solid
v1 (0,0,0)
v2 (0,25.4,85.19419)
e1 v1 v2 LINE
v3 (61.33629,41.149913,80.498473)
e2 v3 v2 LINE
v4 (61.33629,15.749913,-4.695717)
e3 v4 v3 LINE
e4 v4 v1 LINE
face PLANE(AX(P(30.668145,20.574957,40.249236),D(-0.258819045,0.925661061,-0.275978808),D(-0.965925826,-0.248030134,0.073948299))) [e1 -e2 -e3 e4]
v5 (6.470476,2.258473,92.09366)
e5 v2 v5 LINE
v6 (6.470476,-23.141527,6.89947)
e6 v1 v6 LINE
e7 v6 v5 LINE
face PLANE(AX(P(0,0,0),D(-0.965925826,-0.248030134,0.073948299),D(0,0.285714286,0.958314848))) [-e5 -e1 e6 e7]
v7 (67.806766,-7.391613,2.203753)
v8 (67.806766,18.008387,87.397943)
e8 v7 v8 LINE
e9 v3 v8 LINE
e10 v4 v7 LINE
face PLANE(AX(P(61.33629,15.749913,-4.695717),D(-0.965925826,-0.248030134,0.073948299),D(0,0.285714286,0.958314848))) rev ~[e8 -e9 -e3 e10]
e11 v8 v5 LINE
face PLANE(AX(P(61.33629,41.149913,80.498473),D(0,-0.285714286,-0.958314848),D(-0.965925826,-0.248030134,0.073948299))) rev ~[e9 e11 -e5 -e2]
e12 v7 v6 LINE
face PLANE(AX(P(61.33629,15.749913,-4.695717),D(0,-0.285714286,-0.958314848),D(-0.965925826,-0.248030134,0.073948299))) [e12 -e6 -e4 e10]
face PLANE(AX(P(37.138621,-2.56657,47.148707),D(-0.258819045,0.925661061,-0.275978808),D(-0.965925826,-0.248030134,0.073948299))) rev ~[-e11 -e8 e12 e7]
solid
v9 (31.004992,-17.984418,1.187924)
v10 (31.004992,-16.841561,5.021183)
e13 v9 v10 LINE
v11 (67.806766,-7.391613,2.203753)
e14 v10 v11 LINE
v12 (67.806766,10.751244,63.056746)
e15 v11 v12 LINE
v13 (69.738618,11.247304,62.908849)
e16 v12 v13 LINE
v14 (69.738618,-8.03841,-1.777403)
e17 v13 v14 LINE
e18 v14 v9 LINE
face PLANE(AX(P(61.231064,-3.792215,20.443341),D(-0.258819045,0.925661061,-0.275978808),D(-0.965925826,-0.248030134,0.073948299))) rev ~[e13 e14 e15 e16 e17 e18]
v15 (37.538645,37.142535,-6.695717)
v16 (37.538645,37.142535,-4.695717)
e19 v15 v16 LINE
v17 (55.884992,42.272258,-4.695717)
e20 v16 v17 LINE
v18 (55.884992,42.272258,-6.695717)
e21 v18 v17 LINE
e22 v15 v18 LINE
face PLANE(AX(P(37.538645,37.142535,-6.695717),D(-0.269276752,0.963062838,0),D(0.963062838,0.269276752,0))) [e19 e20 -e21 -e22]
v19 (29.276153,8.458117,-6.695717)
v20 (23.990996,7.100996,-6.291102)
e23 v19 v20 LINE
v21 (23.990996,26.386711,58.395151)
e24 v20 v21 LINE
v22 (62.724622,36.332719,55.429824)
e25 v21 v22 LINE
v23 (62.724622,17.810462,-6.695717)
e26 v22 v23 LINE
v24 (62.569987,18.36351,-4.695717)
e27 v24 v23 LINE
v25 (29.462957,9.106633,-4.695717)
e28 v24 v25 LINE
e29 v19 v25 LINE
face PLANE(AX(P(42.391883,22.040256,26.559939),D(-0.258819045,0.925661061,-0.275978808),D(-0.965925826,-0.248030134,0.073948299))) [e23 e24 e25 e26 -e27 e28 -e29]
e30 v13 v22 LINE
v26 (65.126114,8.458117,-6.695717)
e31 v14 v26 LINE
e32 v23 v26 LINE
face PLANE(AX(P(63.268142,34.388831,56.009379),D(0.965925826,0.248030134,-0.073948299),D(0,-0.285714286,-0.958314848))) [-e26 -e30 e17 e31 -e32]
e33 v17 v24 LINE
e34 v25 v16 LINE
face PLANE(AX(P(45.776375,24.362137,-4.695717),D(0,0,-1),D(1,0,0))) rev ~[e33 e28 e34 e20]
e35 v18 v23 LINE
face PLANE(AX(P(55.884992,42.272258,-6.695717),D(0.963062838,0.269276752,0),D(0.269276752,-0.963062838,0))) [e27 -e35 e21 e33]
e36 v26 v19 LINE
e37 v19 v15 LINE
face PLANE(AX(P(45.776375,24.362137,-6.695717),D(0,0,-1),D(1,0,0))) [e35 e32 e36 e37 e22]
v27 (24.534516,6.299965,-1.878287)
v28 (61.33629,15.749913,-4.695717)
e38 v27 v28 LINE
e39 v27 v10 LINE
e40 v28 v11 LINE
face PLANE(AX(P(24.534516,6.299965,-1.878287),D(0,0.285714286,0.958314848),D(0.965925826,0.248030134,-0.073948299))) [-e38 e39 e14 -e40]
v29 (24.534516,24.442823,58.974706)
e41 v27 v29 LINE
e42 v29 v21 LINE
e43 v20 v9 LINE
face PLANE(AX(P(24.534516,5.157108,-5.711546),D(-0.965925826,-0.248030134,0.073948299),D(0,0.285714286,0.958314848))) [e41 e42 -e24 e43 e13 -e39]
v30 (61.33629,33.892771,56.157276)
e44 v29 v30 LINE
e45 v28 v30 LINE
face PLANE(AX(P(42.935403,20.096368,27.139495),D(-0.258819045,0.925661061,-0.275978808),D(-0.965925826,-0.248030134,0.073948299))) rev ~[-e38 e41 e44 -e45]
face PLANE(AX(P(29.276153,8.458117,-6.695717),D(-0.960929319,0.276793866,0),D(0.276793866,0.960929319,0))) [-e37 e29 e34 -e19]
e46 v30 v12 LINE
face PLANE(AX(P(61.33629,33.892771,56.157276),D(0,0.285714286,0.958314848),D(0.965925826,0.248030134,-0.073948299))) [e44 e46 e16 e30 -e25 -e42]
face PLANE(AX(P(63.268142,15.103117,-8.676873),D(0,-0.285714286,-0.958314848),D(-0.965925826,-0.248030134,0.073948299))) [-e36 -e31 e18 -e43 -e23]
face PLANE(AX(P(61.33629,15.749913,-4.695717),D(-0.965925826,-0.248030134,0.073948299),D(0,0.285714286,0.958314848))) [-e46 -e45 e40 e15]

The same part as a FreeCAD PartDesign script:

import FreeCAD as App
import Part
import Sketcher


def add_polygon(sketch, points):
    """Adds a closed chain of lines whose ends are joined by coincident constraints."""
    first, n = sketch.GeometryCount, len(points)
    for a, b in zip(points, points[1:] + points[:1]):
        sketch.addGeometry(Part.LineSegment(App.Vector(*a, 0), App.Vector(*b, 0)), False)
    for i in range(n):
        sketch.addConstraint(Sketcher.Constraint("Coincident", first + i, 2, first + (i + 1) % n, 1))

doc = App.newDocument("Part")
body = doc.addObject("PartDesign::Body", "Body")

sketch1 = body.newObject("Sketcher::SketchObject", "Sketch")
sketch1.Placement = App.Placement(App.Vector(0, 0, 0), App.Rotation(App.Vector(-0.965925826, -0.248030134, 0.073948299), App.Vector(0, 0.285714286, 0.958314847), App.Vector(-0.258819045, 0.925661061, -0.275978808), "ZXY"))
add_polygon(sketch1, [(-63.5, 88.9), (-63.5, 0), (0, 0), (0, 88.9)])
sketch1.addConstraint([
    Sketcher.Constraint("Vertical", 0),
    Sketcher.Constraint("Horizontal", 1),
    Sketcher.Constraint("Vertical", 2),
    Sketcher.Constraint("Horizontal", 3),
    Sketcher.Constraint("Coincident", 1, 2, -1, 1),
    Sketcher.Constraint("DistanceX", 1, 1, 1, 2, 63.5),
    Sketcher.Constraint("DistanceY", 0, 2, 0, 1, 88.9),
])
pad1 = body.newObject("PartDesign::Pad", "Pad")
pad1.Profile = sketch1
pad1.Length = 25
pad1.Reversed = True
body2 = doc.addObject("PartDesign::Body", "Body001")

sketch2 = body2.newObject("Sketcher::SketchObject", "Sketch001")
sketch2.Placement = App.Placement(App.Vector(0, 0, 0), App.Rotation(App.Vector(-0.965925826, -0.248030134, 0.073948299), App.Vector(0, 0.285714286, 0.958314847), App.Vector(-0.258819045, 0.925661061, -0.275978808), "ZXY"))
add_polygon(sketch2, [(-25.4, 63.5), (-65.5, 63.5), (-65.5, -4), (-25.4, -4)])
sketch2.addConstraint([
    Sketcher.Constraint("Horizontal", 0),
    Sketcher.Constraint("Vertical", 1),
    Sketcher.Constraint("Horizontal", 2),
    Sketcher.Constraint("Vertical", 3),
    Sketcher.Constraint("DistanceX", 0, 2, 0, 1, 40.1),
    Sketcher.Constraint("DistanceY", 1, 2, 1, 1, 67.5),
    Sketcher.Constraint("DistanceY", 1, 2, -1, 1, 4.0),
    Sketcher.Constraint("DistanceX", 0, 2, -1, 1, 65.5),
])
pad2 = body2.newObject("PartDesign::Pad", "Pad001")
pad2.Profile = sketch2
pad2.Length = 2.1

sketch3 = body2.newObject("Sketcher::SketchObject", "Sketch002")
sketch3.Placement = App.Placement(App.Vector(0, 0, 0), App.Rotation(App.Vector(-0.965925826, -0.248030134, 0.073948299), App.Vector(0, 0.285714286, 0.958314847), App.Vector(-0.258819045, 0.925661061, -0.275978808), "ZXY"))
add_polygon(sketch3, [(-63.5, 0), (-63.5, 63.5), (-65.5, 63.5), (-65.5, -4), (-25.4, -4), (-25.4, 0)])
sketch3.addConstraint([
    Sketcher.Constraint("Vertical", 0),
    Sketcher.Constraint("Horizontal", 1),
    Sketcher.Constraint("Vertical", 2),
    Sketcher.Constraint("Horizontal", 3),
    Sketcher.Constraint("Vertical", 4),
    Sketcher.Constraint("Horizontal", 5),
    Sketcher.Constraint("PointOnObject", 4, 2, -1),
    Sketcher.Constraint("DistanceX", 1, 2, 1, 1, 2.0),
    Sketcher.Constraint("DistanceY", 4, 1, 4, 2, 4.0),
    Sketcher.Constraint("DistanceX", 3, 1, 3, 2, 40.1),
    Sketcher.Constraint("DistanceY", 0, 1, 0, 2, 63.5),
    Sketcher.Constraint("DistanceX", 0, 2, -1, 1, 63.5),
])
pad3 = body2.newObject("PartDesign::Pad", "Pad002")
pad3.Profile = sketch3
pad3.Length = 25
pad3.Reversed = True

sketch4 = body2.newObject("Sketcher::SketchObject", "Sketch003")
sketch4.AttachmentSupport = (doc.getObject("XY_Plane001"), [""])
sketch4.MapMode = "FlatFace"
sketch4.AttachmentOffset = App.Placement(App.Vector(0, 0, -6.695717), App.Rotation())
add_polygon(sketch4, [(69.738618, -8.03841), (62.724622, 36.332719), (23.990996, 26.386711), (23.990996, 7.100996), (31.004992, -17.984418)])
sketch4.addConstraint([
    Sketcher.Constraint("Vertical", 2),
    Sketcher.Constraint("Parallel", 1, 4),
    Sketcher.Constraint("Equal", 1, 4),
    Sketcher.Constraint("Distance", 0, 44.92208),
    Sketcher.Constraint("Distance", 1, 39.990209),
    Sketcher.Constraint("DistanceY", 2, 2, 2, 1, 19.285714),
    Sketcher.Constraint("DistanceX", -1, 1, 0, 2, 62.724622),
    Sketcher.Constraint("DistanceY", -1, 1, 0, 2, 36.332719),
    Sketcher.Constraint("DistanceY", -1, 1, 1, 2, 26.386711),
    Sketcher.Constraint("DistanceY", 3, 2, -1, 1, 17.984418),
])
pocket1 = body2.newObject("PartDesign::Pocket", "Pocket")
pocket1.Profile = sketch4
pocket1.Length = 25

sketch5 = body2.newObject("Sketcher::SketchObject", "Sketch004")
sketch5.AttachmentSupport = (doc.getObject("XY_Plane001"), [""])
sketch5.MapMode = "FlatFace"
sketch5.AttachmentOffset = App.Placement(App.Vector(0, 0, -6.695717), App.Rotation())
add_polygon(sketch5, [(55.884992, 42.272258), (62.724622, 17.810462), (29.276153, 8.458117), (37.538645, 37.142535)])
sketch5.addConstraint([
    Sketcher.Constraint("Perpendicular", 0, 1),
    Sketcher.Constraint("Parallel", 1, 3),
    Sketcher.Constraint("Distance", 0, 25.4),
    Sketcher.Constraint("Distance", 3, 19.05),
    Sketcher.Constraint("DistanceX", -1, 1, 0, 2, 62.724622),
    Sketcher.Constraint("DistanceY", -1, 1, 0, 2, 17.810462),
    Sketcher.Constraint("DistanceX", 1, 2, 0, 2, 33.448469),
    Sketcher.Constraint("DistanceY", 1, 2, 2, 2, 28.684418),
])
pad4 = body2.newObject("PartDesign::Pad", "Pad003")
pad4.Profile = sketch5
pad4.Length = 2

doc.recompute()
